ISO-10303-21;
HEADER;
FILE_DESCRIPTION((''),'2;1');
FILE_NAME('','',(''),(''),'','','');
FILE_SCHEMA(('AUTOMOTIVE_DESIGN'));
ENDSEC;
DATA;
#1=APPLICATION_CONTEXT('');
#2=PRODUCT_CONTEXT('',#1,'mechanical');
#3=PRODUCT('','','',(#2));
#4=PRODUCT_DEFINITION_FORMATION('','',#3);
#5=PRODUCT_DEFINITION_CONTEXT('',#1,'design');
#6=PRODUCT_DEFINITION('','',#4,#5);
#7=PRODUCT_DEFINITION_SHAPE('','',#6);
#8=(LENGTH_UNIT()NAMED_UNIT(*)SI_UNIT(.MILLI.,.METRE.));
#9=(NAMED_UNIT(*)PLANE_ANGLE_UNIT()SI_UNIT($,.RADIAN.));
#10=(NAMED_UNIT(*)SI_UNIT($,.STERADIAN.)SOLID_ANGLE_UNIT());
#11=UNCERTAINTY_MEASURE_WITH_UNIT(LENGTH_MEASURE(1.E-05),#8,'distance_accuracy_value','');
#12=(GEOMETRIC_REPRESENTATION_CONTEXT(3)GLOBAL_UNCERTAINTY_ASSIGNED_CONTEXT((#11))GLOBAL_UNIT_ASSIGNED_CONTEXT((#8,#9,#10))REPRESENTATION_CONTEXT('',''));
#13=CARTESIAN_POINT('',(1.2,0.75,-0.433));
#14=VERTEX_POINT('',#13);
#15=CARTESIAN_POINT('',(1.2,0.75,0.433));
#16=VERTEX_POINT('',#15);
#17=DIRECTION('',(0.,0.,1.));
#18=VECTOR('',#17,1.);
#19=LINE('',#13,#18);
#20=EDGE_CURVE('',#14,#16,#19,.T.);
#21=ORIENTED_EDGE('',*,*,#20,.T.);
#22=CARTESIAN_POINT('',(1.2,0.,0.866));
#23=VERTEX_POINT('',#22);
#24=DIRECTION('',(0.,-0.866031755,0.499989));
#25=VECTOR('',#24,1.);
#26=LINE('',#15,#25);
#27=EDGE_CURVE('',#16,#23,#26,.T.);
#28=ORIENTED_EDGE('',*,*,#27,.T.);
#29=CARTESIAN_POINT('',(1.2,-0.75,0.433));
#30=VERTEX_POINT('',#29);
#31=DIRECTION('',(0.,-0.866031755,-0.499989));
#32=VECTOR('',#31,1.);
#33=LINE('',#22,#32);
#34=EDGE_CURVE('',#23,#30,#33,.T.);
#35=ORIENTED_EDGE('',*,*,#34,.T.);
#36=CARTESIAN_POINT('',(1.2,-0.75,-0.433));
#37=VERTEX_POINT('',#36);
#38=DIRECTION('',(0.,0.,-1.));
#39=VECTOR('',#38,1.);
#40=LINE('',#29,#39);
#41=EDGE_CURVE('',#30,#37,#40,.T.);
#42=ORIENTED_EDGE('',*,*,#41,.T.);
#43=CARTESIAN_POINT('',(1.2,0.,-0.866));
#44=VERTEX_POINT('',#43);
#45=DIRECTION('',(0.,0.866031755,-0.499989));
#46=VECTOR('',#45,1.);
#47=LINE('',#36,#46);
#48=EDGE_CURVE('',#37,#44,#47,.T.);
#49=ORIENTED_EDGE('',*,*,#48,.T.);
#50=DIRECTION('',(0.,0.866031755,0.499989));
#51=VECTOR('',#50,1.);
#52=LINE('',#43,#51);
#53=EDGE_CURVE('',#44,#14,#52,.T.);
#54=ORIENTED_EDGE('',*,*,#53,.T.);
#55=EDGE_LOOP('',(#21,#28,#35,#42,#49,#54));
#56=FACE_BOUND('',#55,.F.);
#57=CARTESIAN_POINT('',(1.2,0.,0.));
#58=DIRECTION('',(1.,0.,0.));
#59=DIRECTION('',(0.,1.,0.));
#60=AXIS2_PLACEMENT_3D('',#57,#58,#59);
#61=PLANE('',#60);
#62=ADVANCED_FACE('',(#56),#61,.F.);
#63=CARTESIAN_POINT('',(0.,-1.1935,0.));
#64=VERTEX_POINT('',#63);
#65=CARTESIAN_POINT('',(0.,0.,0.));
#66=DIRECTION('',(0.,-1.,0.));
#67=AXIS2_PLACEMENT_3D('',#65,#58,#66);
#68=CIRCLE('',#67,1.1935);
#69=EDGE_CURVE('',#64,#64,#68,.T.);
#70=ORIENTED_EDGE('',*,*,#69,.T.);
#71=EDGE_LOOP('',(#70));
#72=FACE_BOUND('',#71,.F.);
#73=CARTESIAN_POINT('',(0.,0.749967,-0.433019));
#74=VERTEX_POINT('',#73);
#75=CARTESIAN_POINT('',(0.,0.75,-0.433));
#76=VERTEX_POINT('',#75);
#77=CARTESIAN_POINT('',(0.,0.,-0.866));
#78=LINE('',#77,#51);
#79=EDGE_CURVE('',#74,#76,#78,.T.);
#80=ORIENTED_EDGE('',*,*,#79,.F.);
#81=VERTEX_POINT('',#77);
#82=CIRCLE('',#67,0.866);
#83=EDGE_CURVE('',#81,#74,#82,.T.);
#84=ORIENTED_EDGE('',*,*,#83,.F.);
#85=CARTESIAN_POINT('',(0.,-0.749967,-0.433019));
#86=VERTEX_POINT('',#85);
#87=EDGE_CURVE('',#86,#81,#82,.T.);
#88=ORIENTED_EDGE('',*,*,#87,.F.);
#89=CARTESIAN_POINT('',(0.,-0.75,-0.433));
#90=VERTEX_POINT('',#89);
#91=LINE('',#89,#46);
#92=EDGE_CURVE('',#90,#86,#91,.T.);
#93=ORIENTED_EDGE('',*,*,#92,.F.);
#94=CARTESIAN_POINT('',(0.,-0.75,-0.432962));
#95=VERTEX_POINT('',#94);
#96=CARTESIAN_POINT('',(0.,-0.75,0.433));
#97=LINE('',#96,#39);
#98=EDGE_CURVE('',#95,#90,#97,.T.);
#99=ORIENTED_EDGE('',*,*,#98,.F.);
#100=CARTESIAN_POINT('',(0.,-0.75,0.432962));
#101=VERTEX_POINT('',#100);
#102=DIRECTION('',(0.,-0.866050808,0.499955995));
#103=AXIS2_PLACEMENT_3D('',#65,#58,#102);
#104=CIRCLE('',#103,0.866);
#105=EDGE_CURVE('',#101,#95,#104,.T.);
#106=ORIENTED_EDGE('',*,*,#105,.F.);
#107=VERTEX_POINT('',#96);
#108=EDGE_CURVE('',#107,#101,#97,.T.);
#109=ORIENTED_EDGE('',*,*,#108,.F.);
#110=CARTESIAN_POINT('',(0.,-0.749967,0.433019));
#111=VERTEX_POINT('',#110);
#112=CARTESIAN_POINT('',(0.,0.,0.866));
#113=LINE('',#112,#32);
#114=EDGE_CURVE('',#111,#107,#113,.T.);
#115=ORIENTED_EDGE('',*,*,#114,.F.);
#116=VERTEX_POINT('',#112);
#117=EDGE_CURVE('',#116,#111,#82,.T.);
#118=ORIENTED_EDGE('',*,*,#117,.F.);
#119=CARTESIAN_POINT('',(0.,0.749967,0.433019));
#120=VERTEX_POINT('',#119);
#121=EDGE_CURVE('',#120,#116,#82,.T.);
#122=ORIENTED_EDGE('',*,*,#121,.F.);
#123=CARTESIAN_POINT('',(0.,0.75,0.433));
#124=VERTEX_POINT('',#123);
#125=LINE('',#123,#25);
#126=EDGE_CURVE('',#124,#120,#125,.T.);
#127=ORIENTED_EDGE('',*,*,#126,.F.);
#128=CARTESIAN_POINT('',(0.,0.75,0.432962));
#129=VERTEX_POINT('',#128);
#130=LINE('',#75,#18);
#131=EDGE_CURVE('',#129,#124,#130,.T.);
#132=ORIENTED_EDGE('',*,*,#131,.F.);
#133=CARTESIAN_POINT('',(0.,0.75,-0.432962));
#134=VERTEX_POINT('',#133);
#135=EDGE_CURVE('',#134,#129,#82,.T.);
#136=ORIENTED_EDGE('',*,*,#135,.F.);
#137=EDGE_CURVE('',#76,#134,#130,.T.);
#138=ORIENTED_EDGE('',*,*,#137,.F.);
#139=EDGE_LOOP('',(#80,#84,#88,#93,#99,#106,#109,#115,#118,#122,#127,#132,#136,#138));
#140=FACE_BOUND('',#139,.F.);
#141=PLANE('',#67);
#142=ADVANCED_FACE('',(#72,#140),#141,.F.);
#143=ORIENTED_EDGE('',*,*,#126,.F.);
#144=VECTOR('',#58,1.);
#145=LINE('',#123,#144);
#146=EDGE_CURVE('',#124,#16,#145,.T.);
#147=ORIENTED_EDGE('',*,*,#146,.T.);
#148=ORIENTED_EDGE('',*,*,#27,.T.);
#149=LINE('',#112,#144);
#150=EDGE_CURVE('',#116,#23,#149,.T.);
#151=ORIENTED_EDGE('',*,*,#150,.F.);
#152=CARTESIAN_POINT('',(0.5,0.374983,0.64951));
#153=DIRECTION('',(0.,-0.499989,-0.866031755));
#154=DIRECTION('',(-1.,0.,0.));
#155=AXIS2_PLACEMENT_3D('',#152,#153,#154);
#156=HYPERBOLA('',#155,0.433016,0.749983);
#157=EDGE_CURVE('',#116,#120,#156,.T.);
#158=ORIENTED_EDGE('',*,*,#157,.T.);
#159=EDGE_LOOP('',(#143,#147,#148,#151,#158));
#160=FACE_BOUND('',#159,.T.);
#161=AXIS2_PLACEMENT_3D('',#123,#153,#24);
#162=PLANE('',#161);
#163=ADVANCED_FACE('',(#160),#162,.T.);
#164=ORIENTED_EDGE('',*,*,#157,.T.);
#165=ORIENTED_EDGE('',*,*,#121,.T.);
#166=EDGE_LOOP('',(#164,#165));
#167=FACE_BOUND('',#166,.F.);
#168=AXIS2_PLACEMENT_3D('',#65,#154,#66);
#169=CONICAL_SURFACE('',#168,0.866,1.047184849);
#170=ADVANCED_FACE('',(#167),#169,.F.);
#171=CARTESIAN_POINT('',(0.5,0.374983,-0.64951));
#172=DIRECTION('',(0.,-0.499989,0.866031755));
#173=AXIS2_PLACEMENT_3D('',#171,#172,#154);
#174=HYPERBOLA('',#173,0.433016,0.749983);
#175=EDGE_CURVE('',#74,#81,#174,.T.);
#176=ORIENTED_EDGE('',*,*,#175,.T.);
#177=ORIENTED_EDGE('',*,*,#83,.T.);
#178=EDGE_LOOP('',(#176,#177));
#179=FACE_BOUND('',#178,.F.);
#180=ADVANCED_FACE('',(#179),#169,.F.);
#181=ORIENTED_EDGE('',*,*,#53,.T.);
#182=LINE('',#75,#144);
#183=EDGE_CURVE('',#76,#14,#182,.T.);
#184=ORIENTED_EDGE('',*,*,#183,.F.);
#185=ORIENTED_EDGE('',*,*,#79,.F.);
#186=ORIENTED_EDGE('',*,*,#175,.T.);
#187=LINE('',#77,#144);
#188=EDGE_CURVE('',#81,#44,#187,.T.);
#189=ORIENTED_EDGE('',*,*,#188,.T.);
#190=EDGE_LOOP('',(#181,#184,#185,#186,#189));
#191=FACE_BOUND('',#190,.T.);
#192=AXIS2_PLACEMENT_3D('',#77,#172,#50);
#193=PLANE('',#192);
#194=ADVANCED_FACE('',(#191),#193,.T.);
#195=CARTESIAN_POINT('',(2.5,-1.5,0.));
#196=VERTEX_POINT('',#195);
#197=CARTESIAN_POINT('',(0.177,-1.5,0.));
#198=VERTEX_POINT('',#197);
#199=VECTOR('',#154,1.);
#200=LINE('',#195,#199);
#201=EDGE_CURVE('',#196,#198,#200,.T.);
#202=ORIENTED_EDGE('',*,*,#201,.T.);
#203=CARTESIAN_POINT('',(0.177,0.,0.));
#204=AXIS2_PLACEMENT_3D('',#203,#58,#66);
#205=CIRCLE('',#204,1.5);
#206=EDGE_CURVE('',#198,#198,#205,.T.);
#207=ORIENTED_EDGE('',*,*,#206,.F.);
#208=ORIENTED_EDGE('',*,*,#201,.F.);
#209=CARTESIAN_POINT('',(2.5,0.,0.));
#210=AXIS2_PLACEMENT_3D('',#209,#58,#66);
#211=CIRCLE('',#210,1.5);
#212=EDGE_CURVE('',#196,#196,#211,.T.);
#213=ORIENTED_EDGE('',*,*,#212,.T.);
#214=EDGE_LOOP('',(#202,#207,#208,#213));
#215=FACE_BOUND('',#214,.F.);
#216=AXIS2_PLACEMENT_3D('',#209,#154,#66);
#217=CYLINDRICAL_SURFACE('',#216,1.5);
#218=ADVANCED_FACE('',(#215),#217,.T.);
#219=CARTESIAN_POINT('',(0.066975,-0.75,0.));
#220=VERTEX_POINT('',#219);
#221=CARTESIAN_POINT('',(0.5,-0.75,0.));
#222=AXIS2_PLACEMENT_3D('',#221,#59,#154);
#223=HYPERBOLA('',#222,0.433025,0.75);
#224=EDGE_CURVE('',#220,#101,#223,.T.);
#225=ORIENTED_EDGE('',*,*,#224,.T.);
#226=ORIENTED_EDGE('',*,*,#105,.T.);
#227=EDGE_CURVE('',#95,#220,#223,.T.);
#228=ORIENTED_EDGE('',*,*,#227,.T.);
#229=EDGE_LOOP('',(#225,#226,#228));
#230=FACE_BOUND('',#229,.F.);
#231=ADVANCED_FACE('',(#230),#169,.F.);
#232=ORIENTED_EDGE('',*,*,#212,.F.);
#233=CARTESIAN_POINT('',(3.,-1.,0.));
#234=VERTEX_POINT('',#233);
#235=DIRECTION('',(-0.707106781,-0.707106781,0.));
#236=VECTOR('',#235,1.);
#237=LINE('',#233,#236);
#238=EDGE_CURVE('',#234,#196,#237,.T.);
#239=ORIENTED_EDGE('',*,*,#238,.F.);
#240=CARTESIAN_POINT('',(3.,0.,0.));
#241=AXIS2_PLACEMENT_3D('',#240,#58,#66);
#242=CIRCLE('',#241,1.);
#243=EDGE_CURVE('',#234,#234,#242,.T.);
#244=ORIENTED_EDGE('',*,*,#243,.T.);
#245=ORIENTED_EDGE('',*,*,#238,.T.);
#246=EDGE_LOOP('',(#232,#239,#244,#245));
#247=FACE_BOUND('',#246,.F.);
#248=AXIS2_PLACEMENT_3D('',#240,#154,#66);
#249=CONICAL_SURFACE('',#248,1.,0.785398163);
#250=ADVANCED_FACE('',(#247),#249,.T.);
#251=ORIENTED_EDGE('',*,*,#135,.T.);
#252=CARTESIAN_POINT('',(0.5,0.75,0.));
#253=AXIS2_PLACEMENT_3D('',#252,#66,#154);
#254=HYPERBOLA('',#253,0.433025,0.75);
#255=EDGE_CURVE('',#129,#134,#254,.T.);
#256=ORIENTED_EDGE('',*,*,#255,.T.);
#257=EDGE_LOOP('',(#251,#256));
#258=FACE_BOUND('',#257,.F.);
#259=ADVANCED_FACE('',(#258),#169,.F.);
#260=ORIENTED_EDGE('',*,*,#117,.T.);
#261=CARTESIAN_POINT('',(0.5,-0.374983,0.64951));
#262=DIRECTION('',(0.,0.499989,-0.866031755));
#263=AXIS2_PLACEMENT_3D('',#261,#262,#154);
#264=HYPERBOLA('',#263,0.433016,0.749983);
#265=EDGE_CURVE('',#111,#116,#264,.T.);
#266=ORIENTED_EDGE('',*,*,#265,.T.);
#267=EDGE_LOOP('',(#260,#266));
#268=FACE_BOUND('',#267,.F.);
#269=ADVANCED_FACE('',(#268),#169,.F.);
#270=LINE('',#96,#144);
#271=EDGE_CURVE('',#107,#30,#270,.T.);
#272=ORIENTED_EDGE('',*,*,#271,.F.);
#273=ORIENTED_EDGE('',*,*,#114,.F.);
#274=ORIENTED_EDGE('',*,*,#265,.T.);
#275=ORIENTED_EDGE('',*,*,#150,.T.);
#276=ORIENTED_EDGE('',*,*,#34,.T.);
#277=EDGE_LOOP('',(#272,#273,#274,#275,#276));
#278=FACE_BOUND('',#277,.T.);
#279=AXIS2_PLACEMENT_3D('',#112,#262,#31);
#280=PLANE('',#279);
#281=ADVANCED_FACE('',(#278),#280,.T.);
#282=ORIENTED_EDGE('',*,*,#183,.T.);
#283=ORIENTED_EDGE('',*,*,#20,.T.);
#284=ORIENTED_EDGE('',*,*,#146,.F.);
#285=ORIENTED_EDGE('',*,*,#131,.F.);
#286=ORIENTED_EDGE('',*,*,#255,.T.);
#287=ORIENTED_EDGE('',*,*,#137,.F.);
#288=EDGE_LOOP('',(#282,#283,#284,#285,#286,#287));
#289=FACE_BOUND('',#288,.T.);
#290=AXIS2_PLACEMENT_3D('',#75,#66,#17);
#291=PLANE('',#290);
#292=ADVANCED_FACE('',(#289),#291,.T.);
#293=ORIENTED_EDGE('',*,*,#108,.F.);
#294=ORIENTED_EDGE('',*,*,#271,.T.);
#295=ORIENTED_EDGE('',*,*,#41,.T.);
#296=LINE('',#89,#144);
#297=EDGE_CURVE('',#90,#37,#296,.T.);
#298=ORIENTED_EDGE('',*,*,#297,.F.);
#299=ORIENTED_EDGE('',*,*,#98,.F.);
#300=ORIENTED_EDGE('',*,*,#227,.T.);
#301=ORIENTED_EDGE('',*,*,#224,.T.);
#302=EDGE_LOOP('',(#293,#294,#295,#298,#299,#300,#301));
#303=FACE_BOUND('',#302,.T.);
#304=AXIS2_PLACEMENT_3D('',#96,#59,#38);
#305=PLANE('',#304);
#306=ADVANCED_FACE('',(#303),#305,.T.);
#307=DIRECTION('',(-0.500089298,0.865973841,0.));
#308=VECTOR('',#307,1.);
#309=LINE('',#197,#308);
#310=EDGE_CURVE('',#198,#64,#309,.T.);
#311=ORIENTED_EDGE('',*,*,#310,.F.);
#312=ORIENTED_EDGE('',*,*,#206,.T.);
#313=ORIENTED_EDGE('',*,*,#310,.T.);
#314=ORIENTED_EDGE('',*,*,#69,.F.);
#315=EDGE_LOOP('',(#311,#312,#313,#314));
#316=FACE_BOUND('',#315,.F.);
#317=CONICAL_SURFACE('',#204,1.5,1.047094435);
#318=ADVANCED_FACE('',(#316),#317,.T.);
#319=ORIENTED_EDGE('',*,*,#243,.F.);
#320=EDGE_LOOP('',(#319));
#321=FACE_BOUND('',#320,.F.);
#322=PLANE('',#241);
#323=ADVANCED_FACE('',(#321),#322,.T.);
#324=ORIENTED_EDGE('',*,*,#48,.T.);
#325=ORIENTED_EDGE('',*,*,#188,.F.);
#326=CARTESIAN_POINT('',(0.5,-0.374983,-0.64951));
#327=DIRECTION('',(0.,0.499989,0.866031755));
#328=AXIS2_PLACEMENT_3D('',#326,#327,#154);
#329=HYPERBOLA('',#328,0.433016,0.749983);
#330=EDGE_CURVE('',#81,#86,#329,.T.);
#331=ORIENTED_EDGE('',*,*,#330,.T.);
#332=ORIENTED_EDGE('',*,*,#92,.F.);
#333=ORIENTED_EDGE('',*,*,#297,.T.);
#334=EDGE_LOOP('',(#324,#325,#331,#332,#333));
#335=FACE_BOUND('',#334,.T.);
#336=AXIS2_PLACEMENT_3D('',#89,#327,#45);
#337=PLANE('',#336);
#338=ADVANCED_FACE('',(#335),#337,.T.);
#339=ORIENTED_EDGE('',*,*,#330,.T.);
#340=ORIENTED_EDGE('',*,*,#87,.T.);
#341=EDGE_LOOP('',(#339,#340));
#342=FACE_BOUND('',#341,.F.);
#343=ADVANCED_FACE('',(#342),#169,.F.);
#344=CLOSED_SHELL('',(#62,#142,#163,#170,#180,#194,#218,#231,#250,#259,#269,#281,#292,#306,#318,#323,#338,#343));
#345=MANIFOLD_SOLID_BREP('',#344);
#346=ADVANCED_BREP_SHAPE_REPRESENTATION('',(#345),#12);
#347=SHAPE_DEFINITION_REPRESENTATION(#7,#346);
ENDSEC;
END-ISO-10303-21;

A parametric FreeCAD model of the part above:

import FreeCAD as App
import Part
import Sketcher
from FreeCAD import Vector
Q = App.Units.Quantity

doc = App.newDocument("Part")
params = doc.addObject("Spreadsheet::Sheet", "Params")
for row, (alias, value) in enumerate([
    ("sketch1_height", "1 mm"),
    ("sketch1_length", "1 mm"),
    ("sketch1_width", "2.5 mm"),
    ("revolution_angle", "360 deg"),
    ("pocket1_length", "1.2 mm"),
], start=1):
    params.set(f"A{row}", alias)
    params.set(f"B{row}", "=" + value)
    params.setAlias(f"B{row}", alias)

body = doc.addObject("PartDesign::Body", "Body")

sketch1 = body.newObject("Sketcher::SketchObject", "Sketch")
sketch1.AttachmentSupport = (doc.getObject("XY_Plane"), [""])
sketch1.MapMode = "FlatFace"
sketch1.addGeometry([
    Part.LineSegment(Vector(3, 0, 0), Vector(0.5, 0, 0)),
    Part.LineSegment(Vector(0.5, 0, 0), Vector(0, -0.87, 0)),
    Part.LineSegment(Vector(0, -0.87, 0), Vector(0, -1.19, 0)),
    Part.LineSegment(Vector(0, -1.19, 0), Vector(0.18, -1.5, 0)),
    Part.LineSegment(Vector(0.18, -1.5, 0), Vector(2.5, -1.5, 0)),
    Part.LineSegment(Vector(2.5, -1.5, 0), Vector(3, -1, 0)),
    Part.LineSegment(Vector(3, -1, 0), Vector(3, 0, 0)),
], False)
sketch1.addConstraint([
    Sketcher.Constraint("Coincident", 0, 2, 1, 1),
    Sketcher.Constraint("Coincident", 1, 2, 2, 1),
    Sketcher.Constraint("Coincident", 2, 2, 3, 1),
    Sketcher.Constraint("Coincident", 3, 2, 4, 1),
    Sketcher.Constraint("Coincident", 4, 2, 5, 1),
    Sketcher.Constraint("Coincident", 5, 2, 6, 1),
    Sketcher.Constraint("Coincident", 6, 2, 0, 1),
    Sketcher.Constraint("Horizontal", 0),
    Sketcher.Constraint("Vertical", 2),
    Sketcher.Constraint("Horizontal", 4),
    Sketcher.Constraint("Vertical", 6),
    Sketcher.Constraint("PointOnObject", 0, 2, -1),
    Sketcher.Constraint("PointOnObject", 1, 2, -2),
    Sketcher.Constraint("DistanceY", 6, 1, 6, 2, 1.0),
    Sketcher.Constraint("Angle", 1, Q("-120.0007 deg")),
    Sketcher.Constraint("Angle", 5, Q("45 deg")),
    Sketcher.Constraint("Distance", 1, 1.0),
    Sketcher.Constraint("DistanceX", 0, 2, 0, 1, 2.5),
    Sketcher.Constraint("DistanceX", 0, 2, 4, 2, 2.0),
    Sketcher.Constraint("DistanceX", 4, 1, 4, 2, 2.323),
    Sketcher.Constraint("Distance", 3, 0.354),
])
sketch1.setExpression("Constraints[13]", "Params.sketch1_height")
sketch1.setExpression("Constraints[16]", "Params.sketch1_length")
sketch1.setExpression("Constraints[17]", "Params.sketch1_width")
revolution = body.newObject("PartDesign::Revolution", "Revolution")
revolution.Profile = sketch1
revolution.ReferenceAxis = (sketch1, ["H_Axis"])
revolution.setExpression("Angle", "Params.revolution_angle")

sketch2 = body.newObject("Sketcher::SketchObject", "Sketch001")
sketch2.AttachmentSupport = (doc.getObject("YZ_Plane"), [""])
sketch2.MapMode = "FlatFace"
sketch2.addGeometry([
    Part.LineSegment(Vector(0.8, 0.4, 0), Vector(0, 0.9, 0)),
    Part.LineSegment(Vector(0, 0.9, 0), Vector(-0.8, 0.4, 0)),
    Part.LineSegment(Vector(-0.8, 0.4, 0), Vector(-0.8, -0.4, 0)),
    Part.LineSegment(Vector(-0.8, -0.4, 0), Vector(0, -0.9, 0)),
    Part.LineSegment(Vector(0, -0.9, 0), Vector(0.8, -0.4, 0)),
    Part.LineSegment(Vector(0.8, -0.4, 0), Vector(0.8, 0.4, 0)),
], False)
sketch2.addConstraint([
    Sketcher.Constraint("Coincident", 0, 2, 1, 1),
    Sketcher.Constraint("Coincident", 1, 2, 2, 1),
    Sketcher.Constraint("Coincident", 2, 2, 3, 1),
    Sketcher.Constraint("Coincident", 3, 2, 4, 1),
    Sketcher.Constraint("Coincident", 4, 2, 5, 1),
    Sketcher.Constraint("Coincident", 5, 2, 0, 1),
    Sketcher.Constraint("Vertical", 2),
    Sketcher.Constraint("Vertical", 5),
    Sketcher.Constraint("Symmetric", 0, 2, 3, 2, -1, 1),
    Sketcher.Constraint("Symmetric", 1, 2, 4, 2, -1, 1),
    Sketcher.Constraint("PointOnObject", 0, 2, -2),
    Sketcher.Constraint("Parallel", 0, 3),
    Sketcher.Constraint("Horizontal", 2, 2, 4, 2),
    Sketcher.Constraint("Angle", 0, Q("150.0007 deg")),
    Sketcher.Constraint("DistanceX", 2, 2, 4, 2, 1.5),
    Sketcher.Constraint("DistanceY", 2, 2, 2, 1, 0.866),
])
pocket1 = body.newObject("PartDesign::Pocket", "Pocket")
pocket1.Profile = sketch2
pocket1.setExpression("Length", "Params.pocket1_length")
pocket1.Reversed = True

doc.recompute()
